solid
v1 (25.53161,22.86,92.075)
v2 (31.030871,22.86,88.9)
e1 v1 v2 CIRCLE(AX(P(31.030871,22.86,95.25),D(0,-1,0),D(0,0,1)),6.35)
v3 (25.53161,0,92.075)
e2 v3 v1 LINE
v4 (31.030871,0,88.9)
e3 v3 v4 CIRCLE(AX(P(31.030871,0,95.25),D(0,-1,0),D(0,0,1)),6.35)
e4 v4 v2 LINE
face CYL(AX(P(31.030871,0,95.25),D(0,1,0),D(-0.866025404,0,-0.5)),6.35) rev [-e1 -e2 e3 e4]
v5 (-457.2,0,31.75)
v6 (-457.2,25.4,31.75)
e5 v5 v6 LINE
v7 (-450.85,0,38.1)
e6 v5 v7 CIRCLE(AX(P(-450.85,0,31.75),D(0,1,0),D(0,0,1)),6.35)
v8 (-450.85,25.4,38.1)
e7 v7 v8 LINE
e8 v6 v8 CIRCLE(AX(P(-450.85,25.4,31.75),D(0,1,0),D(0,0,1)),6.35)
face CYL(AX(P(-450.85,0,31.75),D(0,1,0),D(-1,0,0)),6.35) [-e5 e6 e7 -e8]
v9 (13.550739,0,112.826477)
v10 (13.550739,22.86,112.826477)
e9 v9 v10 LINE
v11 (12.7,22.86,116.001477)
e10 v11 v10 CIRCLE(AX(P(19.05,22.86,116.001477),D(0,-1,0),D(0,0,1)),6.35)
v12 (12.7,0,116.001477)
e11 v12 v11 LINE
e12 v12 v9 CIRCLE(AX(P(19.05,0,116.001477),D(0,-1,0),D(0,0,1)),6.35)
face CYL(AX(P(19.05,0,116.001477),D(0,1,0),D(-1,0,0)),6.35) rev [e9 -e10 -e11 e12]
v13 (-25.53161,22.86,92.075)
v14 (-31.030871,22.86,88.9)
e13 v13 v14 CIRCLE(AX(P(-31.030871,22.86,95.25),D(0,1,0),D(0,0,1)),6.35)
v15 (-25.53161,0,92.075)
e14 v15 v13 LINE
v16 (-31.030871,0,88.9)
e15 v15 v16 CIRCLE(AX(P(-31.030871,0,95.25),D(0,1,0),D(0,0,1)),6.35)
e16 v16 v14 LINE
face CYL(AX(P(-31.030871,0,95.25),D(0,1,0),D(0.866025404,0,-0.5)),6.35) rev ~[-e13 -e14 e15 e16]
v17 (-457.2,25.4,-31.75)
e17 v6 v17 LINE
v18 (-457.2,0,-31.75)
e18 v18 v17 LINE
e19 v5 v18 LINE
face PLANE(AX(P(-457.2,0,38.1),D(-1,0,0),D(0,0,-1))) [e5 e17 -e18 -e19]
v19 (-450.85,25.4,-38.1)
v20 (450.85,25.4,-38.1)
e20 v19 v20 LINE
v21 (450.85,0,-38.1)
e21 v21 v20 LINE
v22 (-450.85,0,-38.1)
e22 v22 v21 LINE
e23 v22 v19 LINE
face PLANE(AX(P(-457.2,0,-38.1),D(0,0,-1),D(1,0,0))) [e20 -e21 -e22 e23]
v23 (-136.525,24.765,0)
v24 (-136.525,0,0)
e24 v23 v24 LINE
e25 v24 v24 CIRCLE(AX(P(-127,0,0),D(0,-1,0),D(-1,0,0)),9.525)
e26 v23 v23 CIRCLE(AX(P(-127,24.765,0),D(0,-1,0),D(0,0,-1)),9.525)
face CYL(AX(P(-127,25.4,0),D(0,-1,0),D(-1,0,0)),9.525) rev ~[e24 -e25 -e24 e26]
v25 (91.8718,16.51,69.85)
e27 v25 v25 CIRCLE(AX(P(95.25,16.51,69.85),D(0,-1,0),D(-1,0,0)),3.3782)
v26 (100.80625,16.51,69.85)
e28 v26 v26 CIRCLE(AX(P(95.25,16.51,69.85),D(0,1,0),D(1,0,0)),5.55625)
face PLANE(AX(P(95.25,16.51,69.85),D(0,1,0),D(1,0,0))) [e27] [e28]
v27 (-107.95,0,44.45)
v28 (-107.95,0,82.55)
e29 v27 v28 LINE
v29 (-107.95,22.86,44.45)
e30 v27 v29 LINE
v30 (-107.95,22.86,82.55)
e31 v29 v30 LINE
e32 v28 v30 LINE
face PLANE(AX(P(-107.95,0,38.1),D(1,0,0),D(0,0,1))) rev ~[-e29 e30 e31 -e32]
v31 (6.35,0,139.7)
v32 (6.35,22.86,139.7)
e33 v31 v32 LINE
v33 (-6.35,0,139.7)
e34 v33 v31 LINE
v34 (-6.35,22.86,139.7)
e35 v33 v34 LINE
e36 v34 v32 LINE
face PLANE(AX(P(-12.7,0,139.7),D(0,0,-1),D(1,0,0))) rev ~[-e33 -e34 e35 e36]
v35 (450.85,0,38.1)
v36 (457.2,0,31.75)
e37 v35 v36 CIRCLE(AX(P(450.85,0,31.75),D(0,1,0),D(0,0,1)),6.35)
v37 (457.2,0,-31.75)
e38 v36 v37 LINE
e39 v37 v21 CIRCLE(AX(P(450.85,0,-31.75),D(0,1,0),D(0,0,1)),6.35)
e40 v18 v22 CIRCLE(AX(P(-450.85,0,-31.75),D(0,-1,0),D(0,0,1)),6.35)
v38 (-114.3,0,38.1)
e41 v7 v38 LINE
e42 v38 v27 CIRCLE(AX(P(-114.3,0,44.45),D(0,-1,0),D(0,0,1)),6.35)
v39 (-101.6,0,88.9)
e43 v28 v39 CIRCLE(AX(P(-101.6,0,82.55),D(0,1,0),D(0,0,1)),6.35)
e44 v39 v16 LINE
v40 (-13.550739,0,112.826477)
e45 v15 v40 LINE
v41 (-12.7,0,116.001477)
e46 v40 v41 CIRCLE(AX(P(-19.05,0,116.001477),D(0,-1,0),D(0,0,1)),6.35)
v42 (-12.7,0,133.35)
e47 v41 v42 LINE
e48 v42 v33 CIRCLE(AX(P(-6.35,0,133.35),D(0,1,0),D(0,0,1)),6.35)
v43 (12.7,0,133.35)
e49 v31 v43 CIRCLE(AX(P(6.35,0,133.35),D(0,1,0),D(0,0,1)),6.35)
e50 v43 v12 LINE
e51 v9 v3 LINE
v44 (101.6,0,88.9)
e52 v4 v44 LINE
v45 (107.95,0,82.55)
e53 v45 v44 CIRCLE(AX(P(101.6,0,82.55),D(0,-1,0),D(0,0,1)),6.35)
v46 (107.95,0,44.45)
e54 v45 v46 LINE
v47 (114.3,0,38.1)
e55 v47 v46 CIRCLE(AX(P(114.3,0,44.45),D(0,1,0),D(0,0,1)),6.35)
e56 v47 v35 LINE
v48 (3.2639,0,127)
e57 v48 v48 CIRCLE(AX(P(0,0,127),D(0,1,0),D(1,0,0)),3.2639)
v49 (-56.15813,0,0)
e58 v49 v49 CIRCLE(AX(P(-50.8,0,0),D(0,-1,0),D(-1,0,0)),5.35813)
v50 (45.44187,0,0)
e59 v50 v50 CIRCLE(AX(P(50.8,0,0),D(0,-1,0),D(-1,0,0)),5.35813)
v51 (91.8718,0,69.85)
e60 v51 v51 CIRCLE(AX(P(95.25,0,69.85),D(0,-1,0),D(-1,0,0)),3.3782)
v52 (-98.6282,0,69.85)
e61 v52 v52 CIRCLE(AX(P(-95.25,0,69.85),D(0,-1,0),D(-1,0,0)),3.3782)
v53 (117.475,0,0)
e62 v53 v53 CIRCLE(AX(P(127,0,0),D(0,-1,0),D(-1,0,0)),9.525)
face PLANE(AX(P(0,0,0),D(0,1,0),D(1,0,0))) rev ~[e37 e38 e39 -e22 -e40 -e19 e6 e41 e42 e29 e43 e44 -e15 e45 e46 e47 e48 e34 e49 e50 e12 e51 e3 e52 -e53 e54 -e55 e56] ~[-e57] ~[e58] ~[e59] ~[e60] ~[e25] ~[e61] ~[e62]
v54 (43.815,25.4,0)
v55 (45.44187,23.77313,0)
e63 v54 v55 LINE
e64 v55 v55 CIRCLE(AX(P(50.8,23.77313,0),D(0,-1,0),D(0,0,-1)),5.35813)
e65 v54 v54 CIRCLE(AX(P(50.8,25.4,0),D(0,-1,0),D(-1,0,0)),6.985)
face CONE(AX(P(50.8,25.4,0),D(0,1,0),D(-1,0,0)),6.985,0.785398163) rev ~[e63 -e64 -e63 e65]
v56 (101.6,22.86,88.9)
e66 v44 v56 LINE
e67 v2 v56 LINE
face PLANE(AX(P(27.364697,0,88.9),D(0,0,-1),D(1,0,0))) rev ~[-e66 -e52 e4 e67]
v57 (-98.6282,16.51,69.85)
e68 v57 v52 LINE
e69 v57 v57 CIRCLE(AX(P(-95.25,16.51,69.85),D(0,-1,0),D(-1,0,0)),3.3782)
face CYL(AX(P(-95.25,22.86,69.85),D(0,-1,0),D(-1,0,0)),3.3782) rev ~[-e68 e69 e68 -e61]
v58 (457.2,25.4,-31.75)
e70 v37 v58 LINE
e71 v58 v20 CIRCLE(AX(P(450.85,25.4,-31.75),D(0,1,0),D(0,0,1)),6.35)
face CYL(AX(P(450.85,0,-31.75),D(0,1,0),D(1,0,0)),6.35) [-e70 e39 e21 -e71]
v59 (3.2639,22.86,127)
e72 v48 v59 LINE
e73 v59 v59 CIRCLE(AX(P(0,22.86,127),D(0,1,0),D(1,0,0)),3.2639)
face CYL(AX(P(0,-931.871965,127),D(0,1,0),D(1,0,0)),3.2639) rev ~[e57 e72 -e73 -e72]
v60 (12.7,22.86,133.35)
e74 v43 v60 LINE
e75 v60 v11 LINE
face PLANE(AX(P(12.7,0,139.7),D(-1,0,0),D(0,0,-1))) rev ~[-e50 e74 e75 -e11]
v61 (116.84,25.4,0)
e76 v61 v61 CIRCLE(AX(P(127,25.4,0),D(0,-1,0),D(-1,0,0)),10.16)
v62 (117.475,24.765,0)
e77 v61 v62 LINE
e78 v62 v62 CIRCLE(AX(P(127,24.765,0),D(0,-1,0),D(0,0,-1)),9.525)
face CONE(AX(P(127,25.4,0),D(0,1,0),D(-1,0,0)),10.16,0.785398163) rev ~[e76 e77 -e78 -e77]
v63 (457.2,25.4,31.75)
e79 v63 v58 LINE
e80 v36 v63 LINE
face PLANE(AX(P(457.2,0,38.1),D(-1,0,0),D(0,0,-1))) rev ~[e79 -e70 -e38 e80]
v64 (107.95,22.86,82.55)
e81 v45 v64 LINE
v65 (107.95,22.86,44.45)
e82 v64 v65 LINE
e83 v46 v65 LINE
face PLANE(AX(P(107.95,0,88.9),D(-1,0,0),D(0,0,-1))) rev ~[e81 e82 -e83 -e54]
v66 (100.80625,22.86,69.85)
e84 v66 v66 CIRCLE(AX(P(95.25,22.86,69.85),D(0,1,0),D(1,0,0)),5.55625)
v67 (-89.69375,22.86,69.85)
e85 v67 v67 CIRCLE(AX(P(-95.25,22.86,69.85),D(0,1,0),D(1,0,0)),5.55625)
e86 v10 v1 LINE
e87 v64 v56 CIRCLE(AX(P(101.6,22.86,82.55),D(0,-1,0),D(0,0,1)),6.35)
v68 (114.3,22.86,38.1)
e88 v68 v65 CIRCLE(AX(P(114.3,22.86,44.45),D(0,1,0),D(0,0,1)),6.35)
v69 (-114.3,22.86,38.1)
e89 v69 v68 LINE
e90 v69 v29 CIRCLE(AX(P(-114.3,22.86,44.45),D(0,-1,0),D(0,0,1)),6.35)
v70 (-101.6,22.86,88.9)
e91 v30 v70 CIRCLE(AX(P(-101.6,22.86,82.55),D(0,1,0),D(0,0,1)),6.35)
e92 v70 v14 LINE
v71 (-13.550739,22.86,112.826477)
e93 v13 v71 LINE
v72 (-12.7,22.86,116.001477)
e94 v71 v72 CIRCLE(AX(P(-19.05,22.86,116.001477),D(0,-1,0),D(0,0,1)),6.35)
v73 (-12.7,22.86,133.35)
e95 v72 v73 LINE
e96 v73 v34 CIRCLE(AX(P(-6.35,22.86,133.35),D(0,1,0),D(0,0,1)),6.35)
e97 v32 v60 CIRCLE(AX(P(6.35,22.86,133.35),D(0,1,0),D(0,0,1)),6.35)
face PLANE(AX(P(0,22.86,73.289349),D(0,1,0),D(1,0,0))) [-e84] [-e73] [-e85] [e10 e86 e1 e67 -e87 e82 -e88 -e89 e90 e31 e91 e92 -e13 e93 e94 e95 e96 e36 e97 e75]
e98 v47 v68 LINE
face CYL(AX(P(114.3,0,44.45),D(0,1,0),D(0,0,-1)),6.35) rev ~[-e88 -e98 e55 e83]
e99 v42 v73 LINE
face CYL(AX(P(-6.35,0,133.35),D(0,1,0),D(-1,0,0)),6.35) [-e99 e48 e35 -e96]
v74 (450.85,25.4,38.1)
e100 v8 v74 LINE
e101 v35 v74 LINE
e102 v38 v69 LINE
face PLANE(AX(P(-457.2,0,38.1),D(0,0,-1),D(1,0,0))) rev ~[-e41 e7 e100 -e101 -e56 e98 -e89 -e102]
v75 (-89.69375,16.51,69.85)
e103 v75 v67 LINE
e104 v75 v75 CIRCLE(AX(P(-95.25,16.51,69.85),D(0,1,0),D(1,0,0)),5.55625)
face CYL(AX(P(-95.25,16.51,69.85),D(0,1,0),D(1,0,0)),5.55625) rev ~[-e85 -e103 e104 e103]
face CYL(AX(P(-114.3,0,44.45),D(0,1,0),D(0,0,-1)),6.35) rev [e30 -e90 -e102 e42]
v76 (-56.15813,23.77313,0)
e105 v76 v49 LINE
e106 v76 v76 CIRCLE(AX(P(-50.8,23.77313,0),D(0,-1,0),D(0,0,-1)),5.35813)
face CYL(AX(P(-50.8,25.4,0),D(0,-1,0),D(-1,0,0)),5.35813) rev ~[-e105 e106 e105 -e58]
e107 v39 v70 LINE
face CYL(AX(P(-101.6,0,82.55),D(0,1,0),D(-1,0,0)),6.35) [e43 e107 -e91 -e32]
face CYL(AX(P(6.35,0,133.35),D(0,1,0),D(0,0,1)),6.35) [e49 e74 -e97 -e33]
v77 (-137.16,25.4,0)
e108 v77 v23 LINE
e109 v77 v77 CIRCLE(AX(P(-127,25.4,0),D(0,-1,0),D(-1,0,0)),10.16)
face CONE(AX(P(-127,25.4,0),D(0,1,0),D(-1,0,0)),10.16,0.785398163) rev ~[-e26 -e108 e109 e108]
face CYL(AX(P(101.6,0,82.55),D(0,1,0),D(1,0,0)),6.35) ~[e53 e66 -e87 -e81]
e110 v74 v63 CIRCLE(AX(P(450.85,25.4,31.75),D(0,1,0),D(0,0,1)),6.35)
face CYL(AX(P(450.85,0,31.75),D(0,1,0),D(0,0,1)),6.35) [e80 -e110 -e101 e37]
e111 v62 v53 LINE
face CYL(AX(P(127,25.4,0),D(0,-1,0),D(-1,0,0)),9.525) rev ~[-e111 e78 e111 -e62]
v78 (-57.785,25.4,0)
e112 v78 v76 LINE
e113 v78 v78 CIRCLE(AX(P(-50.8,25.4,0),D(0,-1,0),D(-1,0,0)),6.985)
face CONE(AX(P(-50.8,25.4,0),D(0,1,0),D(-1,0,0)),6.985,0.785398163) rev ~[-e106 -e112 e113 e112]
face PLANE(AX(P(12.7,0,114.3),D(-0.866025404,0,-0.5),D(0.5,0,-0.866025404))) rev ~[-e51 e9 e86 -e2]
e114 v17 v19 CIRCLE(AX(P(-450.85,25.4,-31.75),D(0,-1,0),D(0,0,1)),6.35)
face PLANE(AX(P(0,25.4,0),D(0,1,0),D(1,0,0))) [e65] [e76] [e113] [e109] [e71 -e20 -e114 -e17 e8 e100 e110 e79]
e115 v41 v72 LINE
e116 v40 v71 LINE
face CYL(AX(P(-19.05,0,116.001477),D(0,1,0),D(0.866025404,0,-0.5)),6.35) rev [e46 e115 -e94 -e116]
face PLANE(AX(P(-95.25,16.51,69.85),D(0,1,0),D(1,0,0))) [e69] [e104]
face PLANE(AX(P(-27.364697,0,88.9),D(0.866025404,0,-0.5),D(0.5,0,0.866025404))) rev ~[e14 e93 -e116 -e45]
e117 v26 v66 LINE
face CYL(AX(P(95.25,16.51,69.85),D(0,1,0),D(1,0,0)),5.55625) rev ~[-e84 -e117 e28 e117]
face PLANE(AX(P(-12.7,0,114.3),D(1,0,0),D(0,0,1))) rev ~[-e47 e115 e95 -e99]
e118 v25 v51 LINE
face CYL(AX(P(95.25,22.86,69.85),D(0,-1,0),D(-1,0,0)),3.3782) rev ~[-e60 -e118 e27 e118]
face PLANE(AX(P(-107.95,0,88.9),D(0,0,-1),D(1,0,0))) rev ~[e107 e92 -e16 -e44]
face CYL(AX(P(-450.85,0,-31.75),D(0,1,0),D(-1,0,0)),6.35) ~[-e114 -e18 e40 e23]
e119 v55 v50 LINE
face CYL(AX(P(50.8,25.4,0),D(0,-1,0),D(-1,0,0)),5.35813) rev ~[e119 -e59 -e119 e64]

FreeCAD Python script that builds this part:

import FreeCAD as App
import Part
import Sketcher
from FreeCAD import Vector
Q = App.Units.Quantity


def edges_at(feature, points):
    """Names of the edges that pass closest to the given points."""
    edges = feature.Shape.Edges
    near = lambda p: min(range(len(edges)), key=lambda i: edges[i].distToShape(Part.Vertex(*p))[0])
    return sorted({f"Edge{near(p) + 1}" for p in points})

doc = App.newDocument("Part")
body = doc.addObject("PartDesign::Body", "Body")

sketch1 = body.newObject("Sketcher::SketchObject", "Sketch")
sketch1.AttachmentSupport = (doc.getObject("XZ_Plane"), [""])
sketch1.MapMode = "FlatFace"
sketch1.addGeometry([
    Part.LineSegment(Vector(-457, -38, 0), Vector(-457, 38, 0)),
    Part.LineSegment(Vector(-457, 38, 0), Vector(457, 38, 0)),
    Part.LineSegment(Vector(457, 38, 0), Vector(457, -38, 0)),
    Part.LineSegment(Vector(457, -38, 0), Vector(-457, -38, 0)),
], False)
sketch1.addConstraint([
    Sketcher.Constraint("Coincident", 0, 2, 1, 1),
    Sketcher.Constraint("Coincident", 1, 2, 2, 1),
    Sketcher.Constraint("Coincident", 2, 2, 3, 1),
    Sketcher.Constraint("Coincident", 3, 2, 0, 1),
    Sketcher.Constraint("Vertical", 0),
    Sketcher.Constraint("Horizontal", 1),
    Sketcher.Constraint("Vertical", 2),
    Sketcher.Constraint("Horizontal", 3),
    Sketcher.Constraint("Symmetric", 0, 2, 2, 2, -1, 1),
    Sketcher.Constraint("DistanceX", 1, 1, 1, 2, Q("36 in")),
    Sketcher.Constraint("DistanceY", 0, 1, 0, 2, Q("3 in")),
])
pad1 = body.newObject("PartDesign::Pad", "Pad")
pad1.Profile = sketch1
pad1.Length = Q("1 in")
pad1.Reversed = True
doc.recompute()

fillet = body.newObject("PartDesign::Fillet", "Fillet")
fillet.Base = (pad1, edges_at(pad1, [
    (457.2, 12.7, 38.1),
    (-457.2, 12.7, 38.1),
    (-457.2, 12.7, -38.1),
    (457.2, 12.7, -38.1),
]))
fillet.Radius = Q("0.25 in")

sketch2 = body.newObject("Sketcher::SketchObject", "Sketch001")
sketch2.AttachmentSupport = (doc.getObject("XZ_Plane"), [""])
sketch2.MapMode = "FlatFace"
sketch2.AttachmentOffset = App.Placement(Vector(0, 0, -1 * 25.4), App.Rotation())
sketch2.addGeometry([
    Part.Circle(Vector(-127, 0, 0), Vector(0, 0, 1), 10),
    Part.Circle(Vector(127, 0, 0), Vector(0, 0, 1), 10),
], False)
sketch2.addConstraint([
    Sketcher.Constraint("Equal", 0, 1),
    Sketcher.Constraint("Symmetric", 0, 3, 1, 3, -1, 1),
    Sketcher.Constraint("PointOnObject", 0, 3, -1),
    Sketcher.Constraint("Diameter", 0, Q("0.75 in")),
    Sketcher.Constraint("DistanceX", 0, 3, -1, 1, Q("5 in")),
])
doc.recompute()
hole = body.newObject("PartDesign::Hole", "Hole")
hole.Profile = sketch2
hole.ThreadType = "None"
hole.Diameter = Q("0.75 in")
hole.DepthType = "ThroughAll"
hole.HoleCutType = "Countersink"
hole.HoleCutDiameter = Q("0.8 in")
hole.HoleCutCountersinkAngle = 90
hole.Reversed = True

sketch3 = body.newObject("Sketcher::SketchObject", "Sketch002")
sketch3.AttachmentSupport = (doc.getObject("XZ_Plane"), [""])
sketch3.MapMode = "FlatFace"
sketch3.addGeometry([
    Part.LineSegment(Vector(-27, 89, 0), Vector(-13, 114, 0)),
    Part.LineSegment(Vector(-13, 114, 0), Vector(-13, 140, 0)),
    Part.LineSegment(Vector(-13, 140, 0), Vector(13, 140, 0)),
    Part.LineSegment(Vector(13, 140, 0), Vector(13, 114, 0)),
    Part.LineSegment(Vector(13, 114, 0), Vector(27, 89, 0)),
    Part.LineSegment(Vector(27, 89, 0), Vector(108, 89, 0)),
    Part.LineSegment(Vector(108, 89, 0), Vector(108, 38, 0)),
    Part.LineSegment(Vector(108, 38, 0), Vector(-108, 38, 0)),
    Part.LineSegment(Vector(-108, 38, 0), Vector(-108, 89, 0)),
    Part.LineSegment(Vector(-108, 89, 0), Vector(-27, 89, 0)),
], False)
sketch3.addConstraint([
    Sketcher.Constraint("Coincident", 0, 2, 1, 1),
    Sketcher.Constraint("Coincident", 1, 2, 2, 1),
    Sketcher.Constraint("Coincident", 2, 2, 3, 1),
    Sketcher.Constraint("Coincident", 3, 2, 4, 1),
    Sketcher.Constraint("Coincident", 4, 2, 5, 1),
    Sketcher.Constraint("Coincident", 5, 2, 6, 1),
    Sketcher.Constraint("Coincident", 6, 2, 7, 1),
    Sketcher.Constraint("Coincident", 7, 2, 8, 1),
    Sketcher.Constraint("Coincident", 8, 2, 9, 1),
    Sketcher.Constraint("Coincident", 9, 2, 0, 1),
    Sketcher.Constraint("Vertical", 1),
    Sketcher.Constraint("Horizontal", 2),
    Sketcher.Constraint("Vertical", 3),
    Sketcher.Constraint("Horizontal", 5),
    Sketcher.Constraint("Vertical", 6),
    Sketcher.Constraint("Horizontal", 7),
    Sketcher.Constraint("Vertical", 8),
    Sketcher.Constraint("Horizontal", 9),
    Sketcher.Constraint("Symmetric", 0, 2, 3, 2, -2),
    Sketcher.Constraint("Symmetric", 5, 2, 8, 2, -2),
    Sketcher.Constraint("Equal", 5, 9),
    Sketcher.Constraint("Equal", 2, 1),
    Sketcher.Constraint("DistanceX", 2, 1, 2, 2, Q("1 in")),
    Sketcher.Constraint("DistanceY", 6, 2, 6, 1, Q("2 in")),
    Sketcher.Constraint("DistanceX", 7, 2, 7, 1, Q("8.5 in")),
    Sketcher.Constraint("Angle", 0, Q("60 deg")),
    Sketcher.Constraint("DistanceY", 4, 2, 3, 2, Q("1 in")),
    Sketcher.Constraint("DistanceY", -1, 1, 0, 2, Q("4.5 in")),
])
pad2 = body.newObject("PartDesign::Pad", "Pad001")
pad2.Profile = sketch3
pad2.Length = Q("0.9 in")
pad2.Reversed = True
doc.recompute()

fillet2 = body.newObject("PartDesign::Fillet", "Fillet001")
fillet2.Base = (pad2, edges_at(pad2, [
    (107.95, 11.43, 88.9),
    (107.95, 11.43, 38.1),
    (-107.95, 11.43, 38.1),
    (-107.95, 11.43, 88.9),
    (-27.365, 11.43, 88.9),
    (-12.7, 11.43, 114.3),
    (-12.7, 11.43, 139.7),
    (12.7, 11.43, 139.7),
    (12.7, 11.43, 114.3),
    (27.365, 11.43, 88.9),
]))
fillet2.Radius = Q("0.25 in")

sketch4 = body.newObject("Sketcher::SketchObject", "Sketch003")
sketch4.AttachmentSupport = (doc.getObject("XZ_Plane"), [""])
sketch4.MapMode = "FlatFace"
sketch4.addGeometry(Part.Circle(Vector(0, 127, 0), Vector(0, 0, 1), 3.3), False)
sketch4.addConstraint([
    Sketcher.Constraint("PointOnObject", 0, 3, -2),
    Sketcher.Constraint("Diameter", 0, Q("0.257 in")),
    Sketcher.Constraint("DistanceY", -1, 1, 0, 3, Q("5 in")),
])
doc.recompute()
hole2 = body.newObject("PartDesign::Hole", "Hole001")
hole2.Profile = sketch4
hole2.ThreadType = "None"
hole2.Diameter = Q("0.257 in")
hole2.DepthType = "ThroughAll"

sketch5 = body.newObject("Sketcher::SketchObject", "Sketch004")
sketch5.AttachmentSupport = (doc.getObject("XZ_Plane"), [""])
sketch5.MapMode = "FlatFace"
sketch5.AttachmentOffset = App.Placement(Vector(0, 0, -1 * 25.4), App.Rotation())
sketch5.addGeometry([
    Part.Circle(Vector(-51, 0, 0), Vector(0, 0, 1), 5),
    Part.Circle(Vector(51, 0, 0), Vector(0, 0, 1), 5),
], False)
sketch5.addConstraint([
    Sketcher.Constraint("Equal", 0, 1),
    Sketcher.Constraint("Symmetric", 0, 3, 1, 3, -1, 1),
    Sketcher.Constraint("PointOnObject", 0, 3, -1),
    Sketcher.Constraint("DistanceX", 0, 3, -1, 1, Q("2 in")),
    Sketcher.Constraint("Diameter", 0, Q("0.4219 in")),
])
doc.recompute()
hole3 = body.newObject("PartDesign::Hole", "Hole002")
hole3.Profile = sketch5
hole3.ThreadType = "None"
hole3.Diameter = Q("0.4219 in")
hole3.DepthType = "ThroughAll"
hole3.HoleCutType = "Countersink"
hole3.HoleCutDiameter = Q("0.55 in")
hole3.HoleCutCountersinkAngle = 90
hole3.Reversed = True

sketch6 = body.newObject("Sketcher::SketchObject", "Sketch005")
sketch6.AttachmentSupport = (doc.getObject("XZ_Plane"), [""])
sketch6.MapMode = "FlatFace"
sketch6.AttachmentOffset = App.Placement(Vector(0, 0, -0.9 * 25.4), App.Rotation())
sketch6.addGeometry([
    Part.Circle(Vector(-95.2, 69.8, 0), Vector(0, 0, 1), 3.4),
    Part.Circle(Vector(95.2, 69.8, 0), Vector(0, 0, 1), 3.4),
], False)
sketch6.addConstraint([
    Sketcher.Constraint("Equal", 0, 1),
    Sketcher.Constraint("Symmetric", 0, 3, 1, 3, -2),
    Sketcher.Constraint("Diameter", 0, Q("0.266 in")),
    Sketcher.Constraint("DistanceX", 0, 3, 1, 3, Q("7.5 in")),
    Sketcher.Constraint("DistanceY", -1, 1, 0, 3, Q("2.75 in")),
])
doc.recompute()
hole4 = body.newObject("PartDesign::Hole", "Hole003")
hole4.Profile = sketch6
hole4.ThreadType = "None"
hole4.Diameter = Q("0.266 in")
hole4.DepthType = "ThroughAll"
hole4.HoleCutType = "Counterbore"
hole4.HoleCutDiameter = Q("0.4375 in")
hole4.HoleCutDepth = Q("0.25 in")
hole4.Reversed = True

doc.recompute()
